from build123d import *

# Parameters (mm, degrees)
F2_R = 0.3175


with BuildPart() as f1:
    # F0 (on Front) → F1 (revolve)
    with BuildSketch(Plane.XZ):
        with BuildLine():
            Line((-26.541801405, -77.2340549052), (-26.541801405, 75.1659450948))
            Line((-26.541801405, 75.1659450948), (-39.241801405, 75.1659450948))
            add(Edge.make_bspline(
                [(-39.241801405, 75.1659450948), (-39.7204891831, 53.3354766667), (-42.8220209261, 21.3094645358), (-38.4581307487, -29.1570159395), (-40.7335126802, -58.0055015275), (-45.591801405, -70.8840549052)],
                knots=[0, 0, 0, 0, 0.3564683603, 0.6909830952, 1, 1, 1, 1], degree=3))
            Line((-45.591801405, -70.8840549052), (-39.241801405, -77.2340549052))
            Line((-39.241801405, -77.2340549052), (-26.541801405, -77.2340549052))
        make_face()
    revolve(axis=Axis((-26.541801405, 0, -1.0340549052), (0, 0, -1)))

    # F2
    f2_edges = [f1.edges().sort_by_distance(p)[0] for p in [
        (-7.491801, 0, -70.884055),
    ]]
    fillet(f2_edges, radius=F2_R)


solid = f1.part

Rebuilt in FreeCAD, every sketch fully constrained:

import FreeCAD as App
import Part
import Sketcher

V = App.Vector
Q = App.Units.Quantity


def edges_at(feature, points):
    """Names of the edges that pass closest to the given points."""
    edges = feature.Shape.Edges
    near = lambda p: min(range(len(edges)), key=lambda i: edges[i].distToShape(Part.Vertex(*p))[0])
    return sorted({f"Edge{near(p) + 1}" for p in points})

doc = App.newDocument("Part")
body = doc.addObject("PartDesign::Body", "Body")

sketch1 = doc.addObject("Sketcher::SketchObject", "Sketch")
body.addObject(sketch1)
sketch1.AttachmentSupport = (doc.XZ_Plane, [""])
sketch1.MapMode = "FlatFace"
sketch1.addGeometry([
    Part.LineSegment(V(-26.541801, -77.234055, 0), V(-26.541801, 75.165945, 0)),
    Part.LineSegment(V(-26.541801, 75.165945, 0), V(-39.241801, 75.165945, 0)),
    Part.BSplineCurve([V(-39.241801, 75.165945, 0), V(-39.720489, 53.335477, 0), V(-42.822021, 21.309465, 0), V(-38.458131, -29.157016, 0), V(-40.733513, -58.005502, 0), V(-45.591801, -70.884055, 0)], [4, 1, 1, 4], [0, 0.35646836, 0.690983095, 1], False, 3, [1, 1, 1, 1, 1, 1], False),
    Part.LineSegment(V(-45.591801, -70.884055, 0), V(-39.241801, -77.234055, 0)),
    Part.LineSegment(V(-39.241801, -77.234055, 0), V(-26.541801, -77.234055, 0)),
], False)
sketch1.addGeometry(Part.LineSegment(V(-26.541801, 75.165945, 0), V(-26.541801, -77.234055, 0)), True)
sketch1.addConstraint([
    Sketcher.Constraint("Block", 2),
    Sketcher.Constraint("Coincident", 0, 2, 1, 1),
    Sketcher.Constraint("Coincident", 1, 2, 2, 1),
    Sketcher.Constraint("Coincident", 2, 2, 3, 1),
    Sketcher.Constraint("Coincident", 3, 2, 4, 1),
    Sketcher.Constraint("Coincident", 4, 2, 0, 1),
    Sketcher.Constraint("Vertical", 0),
    Sketcher.Constraint("Horizontal", 1),
    Sketcher.Constraint("Horizontal", 4),
    Sketcher.Constraint("Vertical", 5),
    Sketcher.Constraint("Coincident", 5, 1, 0, 2),
    Sketcher.Constraint("Horizontal", 3, 2, 5, 2),
    Sketcher.Constraint("Vertical", 1, 2, 3, 2),
    Sketcher.Constraint("DistanceY", 0, 1, 0, 2, Q("6 in")),
    Sketcher.Constraint("DistanceX", 1, 2, 1, 1, Q("0.5 in")),
])
revolution = doc.addObject("PartDesign::Revolution", "Revolution")
body.addObject(revolution)
revolution.Profile = sketch1
revolution.ReferenceAxis = (sketch1, ["Axis0"])
revolution.Angle = 360
doc.recompute()

fillet = doc.addObject("PartDesign::Fillet", "Fillet")
body.addObject(fillet)
fillet.Base = (revolution, edges_at(revolution, [(-7.492, 0, -70.884)]))
fillet.Radius = Q("0.0125 in")

doc.recompute()
